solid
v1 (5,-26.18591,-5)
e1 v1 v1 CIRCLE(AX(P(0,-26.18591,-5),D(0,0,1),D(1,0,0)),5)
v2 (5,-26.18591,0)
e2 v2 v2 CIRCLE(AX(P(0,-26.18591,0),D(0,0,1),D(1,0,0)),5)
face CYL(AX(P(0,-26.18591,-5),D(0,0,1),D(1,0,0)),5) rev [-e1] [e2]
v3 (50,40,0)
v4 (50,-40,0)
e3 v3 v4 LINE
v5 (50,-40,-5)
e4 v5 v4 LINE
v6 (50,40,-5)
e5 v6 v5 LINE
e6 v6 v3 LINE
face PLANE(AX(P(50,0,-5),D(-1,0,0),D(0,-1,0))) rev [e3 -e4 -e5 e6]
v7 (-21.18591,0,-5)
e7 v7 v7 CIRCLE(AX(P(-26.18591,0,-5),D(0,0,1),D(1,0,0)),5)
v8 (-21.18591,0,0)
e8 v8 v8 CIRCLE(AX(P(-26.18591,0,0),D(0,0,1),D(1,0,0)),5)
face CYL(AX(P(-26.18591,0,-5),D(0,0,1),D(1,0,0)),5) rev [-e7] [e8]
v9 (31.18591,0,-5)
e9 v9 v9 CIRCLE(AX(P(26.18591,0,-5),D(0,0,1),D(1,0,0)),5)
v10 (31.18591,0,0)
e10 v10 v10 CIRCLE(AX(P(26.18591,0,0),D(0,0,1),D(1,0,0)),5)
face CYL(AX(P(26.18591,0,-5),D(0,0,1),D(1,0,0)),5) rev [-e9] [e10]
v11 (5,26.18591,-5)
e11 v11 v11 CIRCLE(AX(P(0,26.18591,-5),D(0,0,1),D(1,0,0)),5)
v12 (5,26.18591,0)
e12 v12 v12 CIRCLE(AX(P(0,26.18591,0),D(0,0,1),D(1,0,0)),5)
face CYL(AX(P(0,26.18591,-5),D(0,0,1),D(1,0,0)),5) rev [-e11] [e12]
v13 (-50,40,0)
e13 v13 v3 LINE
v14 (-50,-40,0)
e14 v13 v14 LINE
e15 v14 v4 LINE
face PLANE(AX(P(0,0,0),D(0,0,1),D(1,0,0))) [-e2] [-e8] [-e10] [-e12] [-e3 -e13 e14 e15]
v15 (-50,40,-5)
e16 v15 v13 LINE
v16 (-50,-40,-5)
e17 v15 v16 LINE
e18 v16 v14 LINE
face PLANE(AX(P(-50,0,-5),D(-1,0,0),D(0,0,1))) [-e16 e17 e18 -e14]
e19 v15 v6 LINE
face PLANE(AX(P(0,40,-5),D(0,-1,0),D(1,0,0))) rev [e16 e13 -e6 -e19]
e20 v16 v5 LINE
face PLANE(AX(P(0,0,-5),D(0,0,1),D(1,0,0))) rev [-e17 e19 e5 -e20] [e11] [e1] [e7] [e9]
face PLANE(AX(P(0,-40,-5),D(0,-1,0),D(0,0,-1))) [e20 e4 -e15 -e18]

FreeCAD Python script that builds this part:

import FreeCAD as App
import Part
import Sketcher


def add_polygon(sketch, points):
    """Adds a closed chain of lines whose ends are joined by coincident constraints."""
    first, n = sketch.GeometryCount, len(points)
    for a, b in zip(points, points[1:] + points[:1]):
        sketch.addGeometry(Part.LineSegment(App.Vector(*a, 0), App.Vector(*b, 0)), False)
    for i in range(n):
        sketch.addConstraint(Sketcher.Constraint("Coincident", first + i, 2, first + (i + 1) % n, 1))

doc = App.newDocument("Part")
body = doc.addObject("PartDesign::Body", "Body")

sketch1 = doc.addObject("Sketcher::SketchObject", "Sketch")
body.addObject(sketch1)
sketch1.AttachmentSupport = (doc.XY_Plane, [""])
sketch1.MapMode = "FlatFace"
add_polygon(sketch1, [(-50, 40), (-50, -40), (50, -40), (50, 40)])
sketch1.addGeometry(Part.Circle(App.Vector(0, -26.18591, 0), App.Vector(0, 0, 1), 5), False)
sketch1.addGeometry(Part.Circle(App.Vector(-26.18591, 0, 0), App.Vector(0, 0, 1), 5), False)
sketch1.addGeometry(Part.Circle(App.Vector(26.18591, 0, 0), App.Vector(0, 0, 1), 5), False)
sketch1.addGeometry(Part.Circle(App.Vector(0, 26.18591, 0), App.Vector(0, 0, 1), 5), False)
sketch1.addConstraint([
    Sketcher.Constraint("Vertical", 0),
    Sketcher.Constraint("Horizontal", 1),
    Sketcher.Constraint("Vertical", 2),
    Sketcher.Constraint("Horizontal", 3),
    Sketcher.Constraint("Equal", 4, 5),
    Sketcher.Constraint("Equal", 5, 6),
    Sketcher.Constraint("Equal", 6, 7),
    Sketcher.Constraint("Symmetric", 5, 3, 6, 3, -1, 1),
    Sketcher.Constraint("Symmetric", 4, 3, 7, 3, -1, 1),
    Sketcher.Constraint("Symmetric", 0, 2, 2, 2, -1, 1),
    Sketcher.Constraint("PointOnObject", 4, 3, -2),
    Sketcher.Constraint("PointOnObject", 5, 3, -1),
    Sketcher.Constraint("Diameter", 4, 10.0),
    Sketcher.Constraint("DistanceX", 1, 1, 1, 2, 100.0),
    Sketcher.Constraint("DistanceY", 0, 2, 0, 1, 80.0),
    Sketcher.Constraint("DistanceY", 4, 3, -1, 1, 26.18591),
    Sketcher.Constraint("DistanceX", 5, 3, -1, 1, 26.18591),
])
pad1 = doc.addObject("PartDesign::Pad", "Pad")
body.addObject(pad1)
pad1.Profile = sketch1
pad1.Length = 5
pad1.Reversed = True

doc.recompute()
